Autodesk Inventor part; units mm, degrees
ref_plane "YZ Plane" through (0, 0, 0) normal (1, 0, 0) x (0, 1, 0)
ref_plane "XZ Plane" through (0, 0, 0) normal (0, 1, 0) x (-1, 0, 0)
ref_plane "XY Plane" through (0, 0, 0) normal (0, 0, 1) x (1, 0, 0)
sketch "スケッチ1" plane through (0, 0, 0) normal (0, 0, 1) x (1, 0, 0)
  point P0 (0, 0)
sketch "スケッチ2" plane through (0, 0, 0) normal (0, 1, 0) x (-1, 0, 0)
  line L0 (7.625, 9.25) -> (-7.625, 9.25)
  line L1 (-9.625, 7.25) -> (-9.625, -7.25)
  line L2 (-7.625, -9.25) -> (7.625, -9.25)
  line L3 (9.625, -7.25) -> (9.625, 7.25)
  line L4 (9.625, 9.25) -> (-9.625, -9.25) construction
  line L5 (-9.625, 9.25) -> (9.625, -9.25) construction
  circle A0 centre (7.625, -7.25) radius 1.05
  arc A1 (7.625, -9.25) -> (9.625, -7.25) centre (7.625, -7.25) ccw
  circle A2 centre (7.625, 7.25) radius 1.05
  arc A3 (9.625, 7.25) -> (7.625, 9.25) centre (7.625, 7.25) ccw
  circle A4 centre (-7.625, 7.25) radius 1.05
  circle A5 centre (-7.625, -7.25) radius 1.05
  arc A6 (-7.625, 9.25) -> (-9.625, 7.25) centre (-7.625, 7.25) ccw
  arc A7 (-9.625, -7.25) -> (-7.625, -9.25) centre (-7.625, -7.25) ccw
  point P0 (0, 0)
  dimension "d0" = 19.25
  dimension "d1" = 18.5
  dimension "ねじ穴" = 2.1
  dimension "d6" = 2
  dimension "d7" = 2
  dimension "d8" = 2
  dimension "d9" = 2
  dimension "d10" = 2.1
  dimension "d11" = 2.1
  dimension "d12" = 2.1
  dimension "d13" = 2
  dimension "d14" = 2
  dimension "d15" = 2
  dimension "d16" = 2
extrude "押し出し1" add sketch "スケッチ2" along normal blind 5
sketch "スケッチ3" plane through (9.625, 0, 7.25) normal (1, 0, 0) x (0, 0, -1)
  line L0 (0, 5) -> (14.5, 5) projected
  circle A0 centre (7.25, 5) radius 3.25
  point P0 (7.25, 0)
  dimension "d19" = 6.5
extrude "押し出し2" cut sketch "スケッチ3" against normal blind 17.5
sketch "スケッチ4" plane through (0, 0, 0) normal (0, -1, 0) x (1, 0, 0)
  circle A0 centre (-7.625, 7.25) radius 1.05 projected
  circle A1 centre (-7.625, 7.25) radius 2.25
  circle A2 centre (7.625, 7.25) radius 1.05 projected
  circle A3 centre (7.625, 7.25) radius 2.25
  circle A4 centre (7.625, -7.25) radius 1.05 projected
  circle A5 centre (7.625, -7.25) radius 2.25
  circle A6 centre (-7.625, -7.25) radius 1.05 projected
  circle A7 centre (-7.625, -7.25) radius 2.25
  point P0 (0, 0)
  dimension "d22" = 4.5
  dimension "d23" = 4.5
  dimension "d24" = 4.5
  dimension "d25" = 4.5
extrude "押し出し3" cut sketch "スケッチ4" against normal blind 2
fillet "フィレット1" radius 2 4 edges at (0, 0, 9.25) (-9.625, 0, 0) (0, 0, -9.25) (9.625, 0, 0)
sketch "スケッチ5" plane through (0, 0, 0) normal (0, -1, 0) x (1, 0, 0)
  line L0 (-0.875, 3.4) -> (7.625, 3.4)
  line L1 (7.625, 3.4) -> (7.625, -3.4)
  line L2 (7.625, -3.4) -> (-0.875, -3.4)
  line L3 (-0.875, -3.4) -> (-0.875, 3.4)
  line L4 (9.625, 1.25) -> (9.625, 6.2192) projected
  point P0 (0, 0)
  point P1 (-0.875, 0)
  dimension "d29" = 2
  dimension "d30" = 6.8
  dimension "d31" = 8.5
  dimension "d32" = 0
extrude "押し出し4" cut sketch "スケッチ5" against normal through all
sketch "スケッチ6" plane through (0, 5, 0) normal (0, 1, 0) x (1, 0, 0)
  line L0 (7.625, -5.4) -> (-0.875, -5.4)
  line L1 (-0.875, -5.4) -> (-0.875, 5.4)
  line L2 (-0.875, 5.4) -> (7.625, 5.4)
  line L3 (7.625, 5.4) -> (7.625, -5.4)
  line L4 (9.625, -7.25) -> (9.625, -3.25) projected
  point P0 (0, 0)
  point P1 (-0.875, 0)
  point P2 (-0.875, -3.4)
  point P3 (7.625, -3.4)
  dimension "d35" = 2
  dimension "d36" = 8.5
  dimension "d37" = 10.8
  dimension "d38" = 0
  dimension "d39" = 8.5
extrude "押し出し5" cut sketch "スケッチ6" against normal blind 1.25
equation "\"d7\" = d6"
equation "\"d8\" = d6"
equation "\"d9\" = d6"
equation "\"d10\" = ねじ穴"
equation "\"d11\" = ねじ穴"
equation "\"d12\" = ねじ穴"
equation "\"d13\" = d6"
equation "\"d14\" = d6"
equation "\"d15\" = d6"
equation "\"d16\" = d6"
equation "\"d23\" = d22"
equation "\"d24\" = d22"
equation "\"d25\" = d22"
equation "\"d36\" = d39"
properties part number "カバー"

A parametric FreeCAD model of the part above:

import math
import FreeCAD as App
import Part
import Sketcher
Q = App.Units.Quantity


def edges_at(feature, points):
    """Names of the edges that pass closest to the given points."""
    edges = feature.Shape.Edges
    near = lambda p: min(range(len(edges)), key=lambda i: edges[i].distToShape(Part.Vertex(*p))[0])
    return sorted({f"Edge{near(p) + 1}" for p in points})


def add_polygon(sketch, points):
    """Adds a closed chain of lines whose ends are joined by coincident constraints."""
    first, n = sketch.GeometryCount, len(points)
    for a, b in zip(points, points[1:] + points[:1]):
        sketch.addGeometry(Part.LineSegment(App.Vector(*a, 0), App.Vector(*b, 0)), False)
    for i in range(n):
        sketch.addConstraint(Sketcher.Constraint("Coincident", first + i, 2, first + (i + 1) % n, 1))

doc = App.newDocument("Part")
body = doc.addObject("PartDesign::Body", "Body")

sketch1 = body.newObject("Sketcher::SketchObject", "Sketch")
sketch1.AttachmentSupport = (doc.getObject("XZ_Plane"), [""])
sketch1.MapMode = "FlatFace"
sketch1.addGeometry(Part.ArcOfCircle(Part.Circle(App.Vector(-7.6, 7.2, 0), App.Vector(0, 0, 1), 2), math.radians(90), math.radians(180)), False)
sketch1.addGeometry(Part.LineSegment(App.Vector(-7.6, 9.2, 0), App.Vector(7.6, 9.2, 0)), False)
sketch1.addGeometry(Part.ArcOfCircle(Part.Circle(App.Vector(7.6, 7.2, 0), App.Vector(0, 0, 1), 2), math.radians(0), math.radians(90)), False)
sketch1.addGeometry(Part.LineSegment(App.Vector(9.6, 7.2, 0), App.Vector(9.6, -7.2, 0)), False)
sketch1.addGeometry(Part.ArcOfCircle(Part.Circle(App.Vector(7.6, -7.2, 0), App.Vector(0, 0, 1), 2), math.radians(-90), math.radians(0)), False)
sketch1.addGeometry(Part.LineSegment(App.Vector(7.6, -9.2, 0), App.Vector(-7.6, -9.2, 0)), False)
sketch1.addGeometry(Part.ArcOfCircle(Part.Circle(App.Vector(-7.6, -7.2, 0), App.Vector(0, 0, 1), 2), math.radians(180), math.radians(270)), False)
sketch1.addGeometry(Part.LineSegment(App.Vector(-9.6, -7.2, 0), App.Vector(-9.6, 7.2, 0)), False)
sketch1.addGeometry(Part.Circle(App.Vector(7.6, -7.2, 0), App.Vector(0, 0, 1), 1.1), False)
sketch1.addGeometry(Part.Circle(App.Vector(-7.6, -7.2, 0), App.Vector(0, 0, 1), 1.1), False)
sketch1.addGeometry(Part.Circle(App.Vector(7.6, 7.2, 0), App.Vector(0, 0, 1), 1.1), False)
sketch1.addGeometry(Part.Circle(App.Vector(-7.6, 7.2, 0), App.Vector(0, 0, 1), 1.1), False)
sketch1.addConstraint(Sketcher.Constraint("Tangent", 0, 1, 1, 1))
sketch1.addConstraint(Sketcher.Constraint("Tangent", 1, 2, 2, 2))
sketch1.addConstraint(Sketcher.Constraint("Tangent", 2, 1, 3, 1))
sketch1.addConstraint(Sketcher.Constraint("Tangent", 3, 2, 4, 2))
sketch1.addConstraint(Sketcher.Constraint("Tangent", 4, 1, 5, 1))
sketch1.addConstraint(Sketcher.Constraint("Tangent", 5, 2, 6, 2))
sketch1.addConstraint(Sketcher.Constraint("Tangent", 6, 1, 7, 1))
sketch1.addConstraint(Sketcher.Constraint("Tangent", 7, 2, 0, 2))
sketch1.addConstraint(Sketcher.Constraint("Horizontal", 1))
sketch1.addConstraint(Sketcher.Constraint("Vertical", 3))
sketch1.addConstraint(Sketcher.Constraint("Horizontal", 5))
sketch1.addConstraint(Sketcher.Constraint("Vertical", 7))
sketch1.addConstraint(Sketcher.Constraint("Coincident", 8, 3, 4, 3))
sketch1.addConstraint(Sketcher.Constraint("Coincident", 9, 3, 6, 3))
sketch1.addConstraint(Sketcher.Constraint("Coincident", 10, 3, 2, 3))
sketch1.addConstraint(Sketcher.Constraint("Coincident", 11, 3, 0, 3))
sketch1.addConstraint(Sketcher.Constraint("Equal", 0, 2))
sketch1.addConstraint(Sketcher.Constraint("Equal", 2, 4))
sketch1.addConstraint(Sketcher.Constraint("Equal", 4, 6))
sketch1.addConstraint(Sketcher.Constraint("Equal", 8, 9))
sketch1.addConstraint(Sketcher.Constraint("Equal", 9, 10))
sketch1.addConstraint(Sketcher.Constraint("Equal", 10, 11))
sketch1.addConstraint(Sketcher.Constraint("Symmetric", 0, 3, 4, 3, -1, 1))
sketch1.addConstraint(Sketcher.Constraint("Radius", 0, Q("2 mm")))
sketch1.addConstraint(Sketcher.Constraint("Diameter", 8, Q("2.1 mm")))
sketch1.addConstraint(Sketcher.Constraint("DistanceY", 3, 2, 3, 1, Q("14.5 mm")))
sketch1.addConstraint(Sketcher.Constraint("DistanceX", 1, 1, 1, 2, Q("15.25 mm")))
pad1 = body.newObject("PartDesign::Pad", "Pad")
pad1.Profile = sketch1
pad1.Length = 5
pad1.Reversed = True

sketch2 = body.newObject("Sketcher::SketchObject", "Sketch001")
sketch2.AttachmentSupport = (doc.getObject("YZ_Plane"), [""])
sketch2.MapMode = "FlatFace"
sketch2.AttachmentOffset = App.Placement(App.Vector(0, 0, 9.625), App.Rotation())
sketch2.addGeometry(Part.Circle(App.Vector(5, 0, 0), App.Vector(0, 0, 1), 3.2), False)
sketch2.addConstraint(Sketcher.Constraint("PointOnObject", 0, 3, -1))
sketch2.addConstraint(Sketcher.Constraint("Diameter", 0, Q("6.5 mm")))
sketch2.addConstraint(Sketcher.Constraint("DistanceX", -1, 1, 0, 3, Q("5 mm")))
pocket1 = body.newObject("PartDesign::Pocket", "Pocket")
pocket1.Profile = sketch2
pocket1.Length = 17.5

sketch3 = body.newObject("Sketcher::SketchObject", "Sketch002")
sketch3.AttachmentSupport = (doc.getObject("XZ_Plane"), [""])
sketch3.MapMode = "FlatFace"
sketch3.addGeometry(Part.Circle(App.Vector(-7.6, 7.2, 0), App.Vector(0, 0, 1), 2.2), False)
sketch3.addGeometry(Part.Circle(App.Vector(-7.6, 7.2, 0), App.Vector(0, 0, 1), 1.1), False)
sketch3.addGeometry(Part.Circle(App.Vector(7.6, 7.2, 0), App.Vector(0, 0, 1), 2.2), False)
sketch3.addGeometry(Part.Circle(App.Vector(7.6, 7.2, 0), App.Vector(0, 0, 1), 1.1), False)
sketch3.addGeometry(Part.Circle(App.Vector(7.6, -7.2, 0), App.Vector(0, 0, 1), 2.2), False)
sketch3.addGeometry(Part.Circle(App.Vector(7.6, -7.2, 0), App.Vector(0, 0, 1), 1.1), False)
sketch3.addGeometry(Part.Circle(App.Vector(-7.6, -7.2, 0), App.Vector(0, 0, 1), 2.2), False)
sketch3.addGeometry(Part.Circle(App.Vector(-7.6, -7.2, 0), App.Vector(0, 0, 1), 1.1), False)
sketch3.addConstraint(Sketcher.Constraint("Coincident", 1, 3, 0, 3))
sketch3.addConstraint(Sketcher.Constraint("Coincident", 3, 3, 2, 3))
sketch3.addConstraint(Sketcher.Constraint("Coincident", 5, 3, 4, 3))
sketch3.addConstraint(Sketcher.Constraint("Coincident", 7, 3, 6, 3))
sketch3.addConstraint(Sketcher.Constraint("Equal", 0, 2))
sketch3.addConstraint(Sketcher.Constraint("Equal", 1, 3))
sketch3.addConstraint(Sketcher.Constraint("Equal", 2, 4))
sketch3.addConstraint(Sketcher.Constraint("Equal", 3, 5))
sketch3.addConstraint(Sketcher.Constraint("Equal", 4, 6))
sketch3.addConstraint(Sketcher.Constraint("Equal", 5, 7))
sketch3.addConstraint(Sketcher.Constraint("Symmetric", 0, 3, 4, 3, -1, 1))
sketch3.addConstraint(Sketcher.Constraint("Symmetric", 2, 3, 6, 3, -1, 1))
sketch3.addConstraint(Sketcher.Constraint("Symmetric", 0, 3, 2, 3, -2))
sketch3.addConstraint(Sketcher.Constraint("Diameter", 0, Q("4.5 mm")))
sketch3.addConstraint(Sketcher.Constraint("Diameter", 1, Q("2.1 mm")))
sketch3.addConstraint(Sketcher.Constraint("DistanceY", 4, 3, 2, 3, Q("14.5 mm")))
sketch3.addConstraint(Sketcher.Constraint("DistanceX", 0, 3, 2, 3, Q("15.25 mm")))
pocket2 = body.newObject("PartDesign::Pocket", "Pocket001")
pocket2.Profile = sketch3
pocket2.Length = 2
doc.recompute()

fillet = body.newObject("PartDesign::Fillet", "Fillet")
fillet.Base = (pocket2, edges_at(pocket2, [
    (0, 0, 9.25),
    (-9.625, 0, 0),
    (0, 0, -9.25),
    (9.625, 0, 0),
]))
fillet.Radius = 2

sketch4 = body.newObject("Sketcher::SketchObject", "Sketch003")
sketch4.AttachmentSupport = (doc.getObject("XZ_Plane"), [""])
sketch4.MapMode = "FlatFace"
add_polygon(sketch4, [(8, 3), (-1, 3), (-1, -3), (8, -3)])
sketch4.addConstraint(Sketcher.Constraint("Horizontal", 0))
sketch4.addConstraint(Sketcher.Constraint("Vertical", 1))
sketch4.addConstraint(Sketcher.Constraint("Horizontal", 2))
sketch4.addConstraint(Sketcher.Constraint("Vertical", 3))
sketch4.addConstraint(Sketcher.Constraint("DistanceX", 0, 2, 0, 1, Q("8.5 mm")))
sketch4.addConstraint(Sketcher.Constraint("DistanceY", 1, 2, 1, 1, Q("6.8 mm")))
sketch4.addConstraint(Sketcher.Constraint("DistanceY", -1, 1, 0, 2, Q("3.4 mm")))
sketch4.addConstraint(Sketcher.Constraint("DistanceX", 0, 2, -1, 1, Q("0.875 mm")))
pocket3 = body.newObject("PartDesign::Pocket", "Pocket002")
pocket3.Profile = sketch4
pocket3.Type = "ThroughAll"

sketch5 = body.newObject("Sketcher::SketchObject", "Sketch004")
sketch5.AttachmentSupport = (doc.getObject("XZ_Plane"), [""])
sketch5.MapMode = "FlatFace"
sketch5.AttachmentOffset = App.Placement(App.Vector(0, 0, -5), App.Rotation())
add_polygon(sketch5, [(-1, 5), (8, 5), (8, -5), (-1, -5)])
sketch5.addConstraint(Sketcher.Constraint("Horizontal", 0))
sketch5.addConstraint(Sketcher.Constraint("Vertical", 1))
sketch5.addConstraint(Sketcher.Constraint("Horizontal", 2))
sketch5.addConstraint(Sketcher.Constraint("Vertical", 3))
sketch5.addConstraint(Sketcher.Constraint("DistanceX", 0, 1, 0, 2, Q("8.5 mm")))
sketch5.addConstraint(Sketcher.Constraint("DistanceY", 1, 2, 1, 1, Q("10.8 mm")))
sketch5.addConstraint(Sketcher.Constraint("DistanceY", -1, 1, 0, 2, Q("5.4 mm")))
sketch5.addConstraint(Sketcher.Constraint("DistanceX", -1, 1, 0, 2, Q("7.625 mm")))
pocket4 = body.newObject("PartDesign::Pocket", "Pocket003")
pocket4.Profile = sketch5
pocket4.Length = 1.25
pocket4.Reversed = True

doc.recompute()
